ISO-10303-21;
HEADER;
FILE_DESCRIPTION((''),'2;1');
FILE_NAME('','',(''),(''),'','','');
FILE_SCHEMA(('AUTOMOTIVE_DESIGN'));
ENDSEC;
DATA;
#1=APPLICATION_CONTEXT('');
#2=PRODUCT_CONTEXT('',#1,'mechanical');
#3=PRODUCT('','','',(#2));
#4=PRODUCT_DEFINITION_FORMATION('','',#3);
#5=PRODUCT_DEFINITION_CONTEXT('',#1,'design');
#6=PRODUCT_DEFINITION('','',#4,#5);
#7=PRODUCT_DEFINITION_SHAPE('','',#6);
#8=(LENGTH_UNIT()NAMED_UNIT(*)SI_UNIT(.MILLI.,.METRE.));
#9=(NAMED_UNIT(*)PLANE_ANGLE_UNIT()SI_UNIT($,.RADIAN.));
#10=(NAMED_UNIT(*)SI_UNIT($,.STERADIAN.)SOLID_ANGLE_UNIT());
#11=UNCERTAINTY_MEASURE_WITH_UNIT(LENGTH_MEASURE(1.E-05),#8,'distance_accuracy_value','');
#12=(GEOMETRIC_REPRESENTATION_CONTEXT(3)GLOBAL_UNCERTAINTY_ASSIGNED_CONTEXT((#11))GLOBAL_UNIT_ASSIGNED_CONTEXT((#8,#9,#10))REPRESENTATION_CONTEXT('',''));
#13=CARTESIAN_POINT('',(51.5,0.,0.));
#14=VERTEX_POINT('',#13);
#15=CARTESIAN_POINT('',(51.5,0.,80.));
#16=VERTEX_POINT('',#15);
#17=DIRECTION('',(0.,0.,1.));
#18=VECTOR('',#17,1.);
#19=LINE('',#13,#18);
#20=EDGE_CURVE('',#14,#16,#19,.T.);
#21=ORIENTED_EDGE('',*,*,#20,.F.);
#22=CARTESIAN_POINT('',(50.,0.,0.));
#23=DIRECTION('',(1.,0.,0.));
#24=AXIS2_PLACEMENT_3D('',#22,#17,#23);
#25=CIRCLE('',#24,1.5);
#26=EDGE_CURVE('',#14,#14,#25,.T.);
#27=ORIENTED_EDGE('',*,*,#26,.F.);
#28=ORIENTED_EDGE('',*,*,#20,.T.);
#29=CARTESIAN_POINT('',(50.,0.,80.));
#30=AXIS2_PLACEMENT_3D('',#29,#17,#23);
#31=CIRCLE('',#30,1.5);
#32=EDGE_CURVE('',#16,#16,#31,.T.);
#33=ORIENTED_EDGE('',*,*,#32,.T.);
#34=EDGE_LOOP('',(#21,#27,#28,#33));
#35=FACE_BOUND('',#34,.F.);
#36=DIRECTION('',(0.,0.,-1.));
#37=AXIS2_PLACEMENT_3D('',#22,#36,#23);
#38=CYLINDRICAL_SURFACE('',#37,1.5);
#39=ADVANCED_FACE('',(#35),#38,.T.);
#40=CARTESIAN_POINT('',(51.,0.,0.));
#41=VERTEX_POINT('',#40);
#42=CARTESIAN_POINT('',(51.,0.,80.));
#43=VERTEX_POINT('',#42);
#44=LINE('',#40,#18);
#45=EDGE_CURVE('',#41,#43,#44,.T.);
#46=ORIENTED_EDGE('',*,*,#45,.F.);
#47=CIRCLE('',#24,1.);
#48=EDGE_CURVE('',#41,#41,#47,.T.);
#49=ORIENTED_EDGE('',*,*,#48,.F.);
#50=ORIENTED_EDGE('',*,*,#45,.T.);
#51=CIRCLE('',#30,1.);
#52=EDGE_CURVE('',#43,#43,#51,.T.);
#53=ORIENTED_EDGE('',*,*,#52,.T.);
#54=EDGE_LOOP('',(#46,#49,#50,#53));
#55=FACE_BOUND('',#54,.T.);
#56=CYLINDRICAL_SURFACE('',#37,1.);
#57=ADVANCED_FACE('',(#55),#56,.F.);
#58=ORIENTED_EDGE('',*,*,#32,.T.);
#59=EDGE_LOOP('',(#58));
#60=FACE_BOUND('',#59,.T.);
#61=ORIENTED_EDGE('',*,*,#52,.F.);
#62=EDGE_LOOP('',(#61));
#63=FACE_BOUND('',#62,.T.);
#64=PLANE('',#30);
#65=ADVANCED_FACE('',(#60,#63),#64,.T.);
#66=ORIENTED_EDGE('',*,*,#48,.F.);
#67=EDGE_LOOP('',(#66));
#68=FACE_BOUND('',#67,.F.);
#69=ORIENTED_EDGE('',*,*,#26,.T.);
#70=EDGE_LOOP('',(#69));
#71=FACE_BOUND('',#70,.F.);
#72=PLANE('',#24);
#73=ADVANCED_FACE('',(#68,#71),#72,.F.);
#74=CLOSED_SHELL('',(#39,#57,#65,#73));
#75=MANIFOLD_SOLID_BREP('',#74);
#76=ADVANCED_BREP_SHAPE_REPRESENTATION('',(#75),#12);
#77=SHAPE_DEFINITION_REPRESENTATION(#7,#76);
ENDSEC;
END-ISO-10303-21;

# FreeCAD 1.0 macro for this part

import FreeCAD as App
import Part
import Sketcher
from FreeCAD import Vector

doc = App.newDocument("Part")
body = doc.addObject("PartDesign::Body", "Body")

# Sketch on XY plane
sketch1 = body.newObject("Sketcher::SketchObject", "Sketch")
sketch1.AttachmentSupport = (doc.getObject("XY_Plane"), [""])
sketch1.MapMode = "FlatFace"
sketch1.addGeometry([
    Part.Circle(Vector(50, 0, 0), Vector(0, 0, 1), 1.5),
    Part.Circle(Vector(50, 0, 0), Vector(0, 0, 1), 1),
], False)
sketch1.addConstraint([
    Sketcher.Constraint("Coincident", 1, 3, 0, 3),
    Sketcher.Constraint("PointOnObject", 0, 3, -1),
    Sketcher.Constraint("Diameter", 0, 3.0),
    Sketcher.Constraint("Diameter", 1, 2.0),
    Sketcher.Constraint("DistanceX", -1, 1, 0, 3, 50.0),
])
pad1 = body.newObject("PartDesign::Pad", "Pad")
pad1.Profile = sketch1
pad1.Length = 80

doc.recompute()
